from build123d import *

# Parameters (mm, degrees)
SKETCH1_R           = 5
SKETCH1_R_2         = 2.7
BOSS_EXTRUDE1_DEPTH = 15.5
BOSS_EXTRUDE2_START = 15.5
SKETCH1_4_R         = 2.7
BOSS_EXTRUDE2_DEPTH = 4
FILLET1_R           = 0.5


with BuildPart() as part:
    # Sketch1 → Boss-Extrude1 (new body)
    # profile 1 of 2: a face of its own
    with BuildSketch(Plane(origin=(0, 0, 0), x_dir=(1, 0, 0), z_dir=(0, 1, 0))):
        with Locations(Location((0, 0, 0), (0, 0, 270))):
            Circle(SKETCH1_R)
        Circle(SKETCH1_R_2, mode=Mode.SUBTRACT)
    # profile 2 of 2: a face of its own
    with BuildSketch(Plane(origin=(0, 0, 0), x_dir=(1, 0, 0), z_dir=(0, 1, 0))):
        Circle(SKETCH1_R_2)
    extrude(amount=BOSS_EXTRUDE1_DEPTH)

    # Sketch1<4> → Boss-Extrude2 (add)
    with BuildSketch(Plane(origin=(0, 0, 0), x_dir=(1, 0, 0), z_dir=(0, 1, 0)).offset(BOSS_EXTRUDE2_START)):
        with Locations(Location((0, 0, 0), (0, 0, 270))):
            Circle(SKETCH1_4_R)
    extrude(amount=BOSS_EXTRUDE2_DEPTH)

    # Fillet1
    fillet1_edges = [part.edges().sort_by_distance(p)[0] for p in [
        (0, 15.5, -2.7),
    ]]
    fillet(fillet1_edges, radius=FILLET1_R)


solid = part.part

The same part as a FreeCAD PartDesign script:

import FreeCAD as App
import Part
import Sketcher


def edges_at(feature, points):
    """Names of the edges that pass closest to the given points."""
    edges = feature.Shape.Edges
    near = lambda p: min(range(len(edges)), key=lambda i: edges[i].distToShape(Part.Vertex(*p))[0])
    return sorted({f"Edge{near(p) + 1}" for p in points})

doc = App.newDocument("Part")
body = doc.addObject("PartDesign::Body", "Body")

sketch1 = body.newObject("Sketcher::SketchObject", "Sketch")
sketch1.AttachmentSupport = (doc.getObject("XZ_Plane"), [""])
sketch1.MapMode = "FlatFace"
sketch1.addGeometry(Part.Circle(App.Vector(0, 0, 0), App.Vector(0, 0, 1), 5), False)
sketch1.addConstraint([
    Sketcher.Constraint("Coincident", 0, 3, -1, 1),
    Sketcher.Constraint("Diameter", 0, 10.0),
])
pad1 = body.newObject("PartDesign::Pad", "Pad")
pad1.Profile = sketch1
pad1.Length = 15.5
pad1.Reversed = True

sketch2 = body.newObject("Sketcher::SketchObject", "Sketch001")
sketch2.AttachmentSupport = (doc.getObject("XZ_Plane"), [""])
sketch2.MapMode = "FlatFace"
sketch2.AttachmentOffset = App.Placement(App.Vector(0, 0, -15.5), App.Rotation())
sketch2.addGeometry(Part.Circle(App.Vector(0, 0, 0), App.Vector(0, 0, 1), 2.7), False)
sketch2.addConstraint([
    Sketcher.Constraint("Coincident", 0, 3, -1, 1),
    Sketcher.Constraint("Diameter", 0, 5.4),
])
pad2 = body.newObject("PartDesign::Pad", "Pad001")
pad2.Profile = sketch2
pad2.Length = 4
pad2.Reversed = True
doc.recompute()

fillet = body.newObject("PartDesign::Fillet", "Fillet")
fillet.Base = (pad2, edges_at(pad2, [(0, 15.5, -2.7)]))
fillet.Radius = 0.5

doc.recompute()
